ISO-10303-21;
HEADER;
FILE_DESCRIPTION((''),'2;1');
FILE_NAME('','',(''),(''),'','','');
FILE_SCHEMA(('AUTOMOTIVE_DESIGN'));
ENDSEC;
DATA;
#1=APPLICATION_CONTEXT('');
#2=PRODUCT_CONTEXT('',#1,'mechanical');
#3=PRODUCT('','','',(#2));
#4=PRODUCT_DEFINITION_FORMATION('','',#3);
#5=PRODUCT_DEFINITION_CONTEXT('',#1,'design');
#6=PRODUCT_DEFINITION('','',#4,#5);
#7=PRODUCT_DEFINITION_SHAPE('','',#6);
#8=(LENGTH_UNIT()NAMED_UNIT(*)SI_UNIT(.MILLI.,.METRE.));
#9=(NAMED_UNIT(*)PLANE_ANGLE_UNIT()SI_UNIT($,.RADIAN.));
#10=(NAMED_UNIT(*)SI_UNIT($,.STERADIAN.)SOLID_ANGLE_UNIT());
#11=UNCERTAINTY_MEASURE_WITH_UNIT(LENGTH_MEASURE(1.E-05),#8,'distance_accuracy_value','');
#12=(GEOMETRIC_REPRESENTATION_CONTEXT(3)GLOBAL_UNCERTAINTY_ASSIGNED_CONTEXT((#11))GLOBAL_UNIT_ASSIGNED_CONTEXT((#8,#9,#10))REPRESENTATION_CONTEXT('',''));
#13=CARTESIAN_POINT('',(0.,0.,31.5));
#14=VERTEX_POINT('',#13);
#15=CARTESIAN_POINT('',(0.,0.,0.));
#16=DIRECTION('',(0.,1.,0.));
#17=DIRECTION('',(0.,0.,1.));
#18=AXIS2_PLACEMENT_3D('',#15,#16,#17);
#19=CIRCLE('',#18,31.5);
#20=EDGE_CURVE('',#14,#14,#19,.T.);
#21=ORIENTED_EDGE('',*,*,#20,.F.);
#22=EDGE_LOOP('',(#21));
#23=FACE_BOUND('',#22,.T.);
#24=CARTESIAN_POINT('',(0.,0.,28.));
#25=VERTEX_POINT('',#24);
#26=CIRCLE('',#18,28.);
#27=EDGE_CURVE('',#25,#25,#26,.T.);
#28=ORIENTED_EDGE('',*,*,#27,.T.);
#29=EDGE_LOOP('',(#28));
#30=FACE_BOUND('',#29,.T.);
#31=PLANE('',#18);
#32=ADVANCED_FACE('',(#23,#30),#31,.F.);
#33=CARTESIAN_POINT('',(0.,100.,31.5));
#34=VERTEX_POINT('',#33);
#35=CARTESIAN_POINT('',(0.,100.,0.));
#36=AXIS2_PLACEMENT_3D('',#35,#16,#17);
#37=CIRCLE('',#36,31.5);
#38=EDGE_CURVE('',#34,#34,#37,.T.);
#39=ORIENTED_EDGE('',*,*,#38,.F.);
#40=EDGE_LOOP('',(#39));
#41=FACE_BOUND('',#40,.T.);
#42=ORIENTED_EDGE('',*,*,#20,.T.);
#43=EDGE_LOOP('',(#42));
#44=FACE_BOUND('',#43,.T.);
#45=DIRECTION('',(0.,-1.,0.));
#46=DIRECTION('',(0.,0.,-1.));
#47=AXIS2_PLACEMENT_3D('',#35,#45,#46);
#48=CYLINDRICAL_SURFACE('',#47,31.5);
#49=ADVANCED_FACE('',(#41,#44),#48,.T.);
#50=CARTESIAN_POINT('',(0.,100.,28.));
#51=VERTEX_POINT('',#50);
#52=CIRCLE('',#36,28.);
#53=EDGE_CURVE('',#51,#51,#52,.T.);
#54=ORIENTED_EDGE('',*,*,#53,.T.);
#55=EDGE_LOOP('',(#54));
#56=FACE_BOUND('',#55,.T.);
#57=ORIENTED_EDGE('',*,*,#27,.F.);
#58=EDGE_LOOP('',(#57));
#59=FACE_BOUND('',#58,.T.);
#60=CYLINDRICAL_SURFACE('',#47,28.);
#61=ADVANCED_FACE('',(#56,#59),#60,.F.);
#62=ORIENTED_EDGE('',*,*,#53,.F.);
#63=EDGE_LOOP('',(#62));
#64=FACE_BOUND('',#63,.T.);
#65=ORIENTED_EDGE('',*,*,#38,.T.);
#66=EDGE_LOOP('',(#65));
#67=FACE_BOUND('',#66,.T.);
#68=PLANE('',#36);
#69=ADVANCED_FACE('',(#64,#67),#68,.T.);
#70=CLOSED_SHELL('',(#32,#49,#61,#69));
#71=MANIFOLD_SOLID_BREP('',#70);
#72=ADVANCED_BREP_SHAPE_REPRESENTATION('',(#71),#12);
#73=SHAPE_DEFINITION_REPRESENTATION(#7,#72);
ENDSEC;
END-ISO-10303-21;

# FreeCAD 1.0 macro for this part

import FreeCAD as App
import Part
import Sketcher
from FreeCAD import Vector
Q = App.Units.Quantity

doc = App.newDocument("Part")
body = doc.addObject("PartDesign::Body", "Body")

# Sketch on XZ plane
sketch1 = body.newObject("Sketcher::SketchObject", "Sketch")
sketch1.AttachmentSupport = (doc.getObject("XZ_Plane"), [""])
sketch1.MapMode = "FlatFace"
sketch1.addGeometry(Part.Circle(Vector(0, 0, 0), Vector(0, 0, 1), 31.5), False)
sketch1.addGeometry(Part.Circle(Vector(0, 0, 0), Vector(0, 0, 1), 28), False)
sketch1.addConstraint(Sketcher.Constraint("Coincident", 0, 3, -1, 1))
sketch1.addConstraint(Sketcher.Constraint("Coincident", 1, 3, -1, 1))
sketch1.addConstraint(Sketcher.Constraint("Diameter", 0, Q("63 mm")))
sketch1.addConstraint(Sketcher.Constraint("Diameter", 1, Q("56 mm")))
pad1 = body.newObject("PartDesign::Pad", "Pad")
pad1.Profile = sketch1
pad1.Length = 100
pad1.Reversed = True

doc.recompute()
